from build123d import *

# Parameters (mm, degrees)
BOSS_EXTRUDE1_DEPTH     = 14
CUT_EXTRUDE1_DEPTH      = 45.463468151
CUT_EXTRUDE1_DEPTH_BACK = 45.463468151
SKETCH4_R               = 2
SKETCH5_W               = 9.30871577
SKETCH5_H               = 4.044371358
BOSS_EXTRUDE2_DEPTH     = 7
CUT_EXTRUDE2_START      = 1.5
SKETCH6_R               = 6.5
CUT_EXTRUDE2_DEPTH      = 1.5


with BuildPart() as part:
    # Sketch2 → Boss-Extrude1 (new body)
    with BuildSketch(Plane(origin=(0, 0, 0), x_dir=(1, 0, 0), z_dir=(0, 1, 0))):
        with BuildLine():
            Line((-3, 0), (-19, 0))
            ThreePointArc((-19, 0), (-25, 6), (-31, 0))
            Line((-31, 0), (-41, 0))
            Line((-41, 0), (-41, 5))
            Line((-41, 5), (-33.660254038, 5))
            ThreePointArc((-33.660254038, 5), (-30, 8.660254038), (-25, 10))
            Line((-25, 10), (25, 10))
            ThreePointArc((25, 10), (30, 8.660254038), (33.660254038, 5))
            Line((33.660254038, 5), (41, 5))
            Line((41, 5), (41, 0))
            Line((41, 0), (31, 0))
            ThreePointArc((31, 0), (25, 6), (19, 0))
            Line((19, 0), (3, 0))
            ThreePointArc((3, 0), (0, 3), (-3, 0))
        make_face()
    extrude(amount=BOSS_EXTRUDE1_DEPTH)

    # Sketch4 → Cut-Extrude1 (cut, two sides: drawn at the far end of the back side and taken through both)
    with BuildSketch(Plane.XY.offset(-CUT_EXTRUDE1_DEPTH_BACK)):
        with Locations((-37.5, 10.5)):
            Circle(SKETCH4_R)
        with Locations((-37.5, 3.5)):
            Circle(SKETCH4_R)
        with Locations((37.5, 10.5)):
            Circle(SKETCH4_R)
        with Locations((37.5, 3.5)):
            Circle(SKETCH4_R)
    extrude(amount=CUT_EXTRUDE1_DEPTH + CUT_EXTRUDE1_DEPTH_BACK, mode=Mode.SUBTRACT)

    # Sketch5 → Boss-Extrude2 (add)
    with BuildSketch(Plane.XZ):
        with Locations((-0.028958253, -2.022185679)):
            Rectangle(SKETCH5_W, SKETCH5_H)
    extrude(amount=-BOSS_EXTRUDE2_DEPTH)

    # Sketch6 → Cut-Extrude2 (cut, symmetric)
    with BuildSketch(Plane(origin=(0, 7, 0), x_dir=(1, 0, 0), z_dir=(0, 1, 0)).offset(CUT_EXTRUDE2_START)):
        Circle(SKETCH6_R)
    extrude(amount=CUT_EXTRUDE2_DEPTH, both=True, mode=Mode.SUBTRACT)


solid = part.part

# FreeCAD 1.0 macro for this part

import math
import FreeCAD as App
import Part
import Sketcher
from FreeCAD import Vector
Q = App.Units.Quantity


def add_polygon(sketch, points):
    """Adds a closed chain of lines whose ends are joined by coincident constraints."""
    first, n = sketch.GeometryCount, len(points)
    for a, b in zip(points, points[1:] + points[:1]):
        sketch.addGeometry(Part.LineSegment(App.Vector(*a, 0), App.Vector(*b, 0)), False)
    for i in range(n):
        sketch.addConstraint(Sketcher.Constraint("Coincident", first + i, 2, first + (i + 1) % n, 1))

doc = App.newDocument("Part")
body = doc.addObject("PartDesign::Body", "Body")

sketch1 = body.newObject("Sketcher::SketchObject", "Sketch")
sketch1.AttachmentSupport = (doc.getObject("XZ_Plane"), [""])
sketch1.MapMode = "FlatFace"
sketch1.addGeometry([
    Part.LineSegment(Vector(-19, 0, 0), Vector(-3, 0, 0)),
    Part.ArcOfCircle(Part.Circle(Vector(0, 0, 0), Vector(0, 0, 1), 3), math.radians(180), math.radians(360)),
    Part.LineSegment(Vector(3, 0, 0), Vector(19, 0, 0)),
    Part.ArcOfCircle(Part.Circle(Vector(25, 0, 0), Vector(0, 0, 1), 6), math.radians(180), math.radians(360)),
    Part.LineSegment(Vector(31, 0, 0), Vector(41, 0, 0)),
    Part.LineSegment(Vector(41, 0, 0), Vector(41, -5, 0)),
    Part.LineSegment(Vector(41, -5, 0), Vector(33.7, -5, 0)),
    Part.ArcOfCircle(Part.Circle(Vector(25, 0, 0), Vector(0, 0, 1), 10), math.radians(-90), math.radians(-30)),
    Part.LineSegment(Vector(25, -10, 0), Vector(-25, -10, 0)),
    Part.ArcOfCircle(Part.Circle(Vector(-25, 0, 0), Vector(0, 0, 1), 10), math.radians(-150), math.radians(-90)),
    Part.LineSegment(Vector(-33.7, -5, 0), Vector(-41, -5, 0)),
    Part.LineSegment(Vector(-41, -5, 0), Vector(-41, 0, 0)),
    Part.LineSegment(Vector(-41, 0, 0), Vector(-31, 0, 0)),
    Part.ArcOfCircle(Part.Circle(Vector(-25, 0, 0), Vector(0, 0, 1), 6), math.radians(180), math.radians(360)),
], False)
sketch1.addConstraint([
    Sketcher.Constraint("Coincident", 0, 2, 1, 1),
    Sketcher.Constraint("Coincident", 1, 2, 2, 1),
    Sketcher.Constraint("Coincident", 2, 2, 3, 1),
    Sketcher.Constraint("Coincident", 3, 2, 4, 1),
    Sketcher.Constraint("Coincident", 4, 2, 5, 1),
    Sketcher.Constraint("Coincident", 5, 2, 6, 1),
    Sketcher.Constraint("Coincident", 6, 2, 7, 2),
    Sketcher.Constraint("Tangent", 7, 1, 8, 1),
    Sketcher.Constraint("Tangent", 8, 2, 9, 2),
    Sketcher.Constraint("Coincident", 9, 1, 10, 1),
    Sketcher.Constraint("Coincident", 10, 2, 11, 1),
    Sketcher.Constraint("Coincident", 11, 2, 12, 1),
    Sketcher.Constraint("Coincident", 12, 2, 13, 1),
    Sketcher.Constraint("Coincident", 13, 2, 0, 1),
    Sketcher.Constraint("Horizontal", 0),
    Sketcher.Constraint("Horizontal", 2),
    Sketcher.Constraint("Horizontal", 4),
    Sketcher.Constraint("Vertical", 5),
    Sketcher.Constraint("Horizontal", 6),
    Sketcher.Constraint("Horizontal", 8),
    Sketcher.Constraint("Horizontal", 10),
    Sketcher.Constraint("Vertical", 11),
    Sketcher.Constraint("Horizontal", 12),
    Sketcher.Constraint("Coincident", 1, 3, -1, 1),
    Sketcher.Constraint("Coincident", 7, 3, 3, 3),
    Sketcher.Constraint("Coincident", 13, 3, 9, 3),
    Sketcher.Constraint("Equal", 7, 9),
    Sketcher.Constraint("Equal", 3, 13),
    Sketcher.Constraint("Symmetric", 3, 3, 9, 3, -1, 1),
    Sketcher.Constraint("Symmetric", 4, 2, 11, 2, -1, 1),
    Sketcher.Constraint("PointOnObject", 0, 2, -1),
    Sketcher.Constraint("PointOnObject", 1, 2, -1),
    Sketcher.Constraint("PointOnObject", 3, 2, -1),
    Sketcher.Constraint("Horizontal", 6, 2, 9, 1),
    Sketcher.Constraint("Radius", 1, Q("3 mm")),
    Sketcher.Constraint("Radius", 3, Q("6 mm")),
    Sketcher.Constraint("Radius", 7, Q("10 mm")),
    Sketcher.Constraint("DistanceX", 0, 1, 0, 2, Q("16 mm")),
    Sketcher.Constraint("DistanceX", 4, 1, 4, 2, Q("10 mm")),
    Sketcher.Constraint("DistanceY", 5, 2, 5, 1, Q("5 mm")),
])
pad1 = body.newObject("PartDesign::Pad", "Pad")
pad1.Profile = sketch1
pad1.Length = 14
pad1.Reversed = True

sketch2 = body.newObject("Sketcher::SketchObject", "Sketch001")
sketch2.AttachmentSupport = (doc.getObject("XY_Plane"), [""])
sketch2.MapMode = "FlatFace"
sketch2.addGeometry([
    Part.Circle(Vector(-37.5, 10.5, 0), Vector(0, 0, 1), 2),
    Part.Circle(Vector(-37.5, 3.5, 0), Vector(0, 0, 1), 2),
    Part.Circle(Vector(37.5, 10.5, 0), Vector(0, 0, 1), 2),
    Part.Circle(Vector(37.5, 3.5, 0), Vector(0, 0, 1), 2),
], False)
sketch2.addConstraint([
    Sketcher.Constraint("Equal", 0, 1),
    Sketcher.Constraint("Equal", 1, 2),
    Sketcher.Constraint("Equal", 2, 3),
    Sketcher.Constraint("Symmetric", 0, 3, 2, 3, -2),
    Sketcher.Constraint("Symmetric", 1, 3, 3, 3, -2),
    Sketcher.Constraint("Vertical", 0, 3, 1, 3),
    Sketcher.Constraint("Diameter", 0, Q("4 mm")),
    Sketcher.Constraint("DistanceY", 1, 3, 0, 3, Q("7 mm")),
    Sketcher.Constraint("DistanceX", 0, 3, 2, 3, Q("75 mm")),
    Sketcher.Constraint("DistanceY", -1, 1, 0, 3, Q("10.5 mm")),
])
pocket1 = body.newObject("PartDesign::Pocket", "Pocket")
pocket1.Profile = sketch2
pocket1.Type = "ThroughAll"
pocket1.Midplane = True

sketch3 = body.newObject("Sketcher::SketchObject", "Sketch002")
sketch3.AttachmentSupport = (doc.getObject("XZ_Plane"), [""])
sketch3.MapMode = "FlatFace"
add_polygon(sketch3, [(-4.7, 0), (-4.7, -4), (4.6, -4), (4.6, 0)])
sketch3.addConstraint([
    Sketcher.Constraint("Vertical", 0),
    Sketcher.Constraint("Horizontal", 1),
    Sketcher.Constraint("Vertical", 2),
    Sketcher.Constraint("Horizontal", 3),
    Sketcher.Constraint("PointOnObject", 2, 2, -1),
    Sketcher.Constraint("DistanceY", 0, 2, 0, 1, Q("4.044371 mm")),
    Sketcher.Constraint("DistanceX", -1, 1, 1, 2, Q("4.6254 mm")),
    Sketcher.Constraint("DistanceX", 1, 1, 1, 2, Q("9.308716 mm")),
])
pad2 = body.newObject("PartDesign::Pad", "Pad001")
pad2.Profile = sketch3
pad2.Length = 7
pad2.Reversed = True

sketch4 = body.newObject("Sketcher::SketchObject", "Sketch003")
sketch4.AttachmentSupport = (doc.getObject("XZ_Plane"), [""])
sketch4.MapMode = "FlatFace"
sketch4.AttachmentOffset = App.Placement(Vector(0, 0, -8.5), App.Rotation())
sketch4.addGeometry(Part.Circle(Vector(0, 0, 0), Vector(0, 0, 1), 6), False)
sketch4.addConstraint([
    Sketcher.Constraint("Coincident", 0, 3, -1, 1),
    Sketcher.Constraint("Diameter", 0, Q("13 mm")),
])
pocket2 = body.newObject("PartDesign::Pocket", "Pocket001")
pocket2.Profile = sketch4
pocket2.Length = 3
pocket2.Midplane = True

doc.recompute()
